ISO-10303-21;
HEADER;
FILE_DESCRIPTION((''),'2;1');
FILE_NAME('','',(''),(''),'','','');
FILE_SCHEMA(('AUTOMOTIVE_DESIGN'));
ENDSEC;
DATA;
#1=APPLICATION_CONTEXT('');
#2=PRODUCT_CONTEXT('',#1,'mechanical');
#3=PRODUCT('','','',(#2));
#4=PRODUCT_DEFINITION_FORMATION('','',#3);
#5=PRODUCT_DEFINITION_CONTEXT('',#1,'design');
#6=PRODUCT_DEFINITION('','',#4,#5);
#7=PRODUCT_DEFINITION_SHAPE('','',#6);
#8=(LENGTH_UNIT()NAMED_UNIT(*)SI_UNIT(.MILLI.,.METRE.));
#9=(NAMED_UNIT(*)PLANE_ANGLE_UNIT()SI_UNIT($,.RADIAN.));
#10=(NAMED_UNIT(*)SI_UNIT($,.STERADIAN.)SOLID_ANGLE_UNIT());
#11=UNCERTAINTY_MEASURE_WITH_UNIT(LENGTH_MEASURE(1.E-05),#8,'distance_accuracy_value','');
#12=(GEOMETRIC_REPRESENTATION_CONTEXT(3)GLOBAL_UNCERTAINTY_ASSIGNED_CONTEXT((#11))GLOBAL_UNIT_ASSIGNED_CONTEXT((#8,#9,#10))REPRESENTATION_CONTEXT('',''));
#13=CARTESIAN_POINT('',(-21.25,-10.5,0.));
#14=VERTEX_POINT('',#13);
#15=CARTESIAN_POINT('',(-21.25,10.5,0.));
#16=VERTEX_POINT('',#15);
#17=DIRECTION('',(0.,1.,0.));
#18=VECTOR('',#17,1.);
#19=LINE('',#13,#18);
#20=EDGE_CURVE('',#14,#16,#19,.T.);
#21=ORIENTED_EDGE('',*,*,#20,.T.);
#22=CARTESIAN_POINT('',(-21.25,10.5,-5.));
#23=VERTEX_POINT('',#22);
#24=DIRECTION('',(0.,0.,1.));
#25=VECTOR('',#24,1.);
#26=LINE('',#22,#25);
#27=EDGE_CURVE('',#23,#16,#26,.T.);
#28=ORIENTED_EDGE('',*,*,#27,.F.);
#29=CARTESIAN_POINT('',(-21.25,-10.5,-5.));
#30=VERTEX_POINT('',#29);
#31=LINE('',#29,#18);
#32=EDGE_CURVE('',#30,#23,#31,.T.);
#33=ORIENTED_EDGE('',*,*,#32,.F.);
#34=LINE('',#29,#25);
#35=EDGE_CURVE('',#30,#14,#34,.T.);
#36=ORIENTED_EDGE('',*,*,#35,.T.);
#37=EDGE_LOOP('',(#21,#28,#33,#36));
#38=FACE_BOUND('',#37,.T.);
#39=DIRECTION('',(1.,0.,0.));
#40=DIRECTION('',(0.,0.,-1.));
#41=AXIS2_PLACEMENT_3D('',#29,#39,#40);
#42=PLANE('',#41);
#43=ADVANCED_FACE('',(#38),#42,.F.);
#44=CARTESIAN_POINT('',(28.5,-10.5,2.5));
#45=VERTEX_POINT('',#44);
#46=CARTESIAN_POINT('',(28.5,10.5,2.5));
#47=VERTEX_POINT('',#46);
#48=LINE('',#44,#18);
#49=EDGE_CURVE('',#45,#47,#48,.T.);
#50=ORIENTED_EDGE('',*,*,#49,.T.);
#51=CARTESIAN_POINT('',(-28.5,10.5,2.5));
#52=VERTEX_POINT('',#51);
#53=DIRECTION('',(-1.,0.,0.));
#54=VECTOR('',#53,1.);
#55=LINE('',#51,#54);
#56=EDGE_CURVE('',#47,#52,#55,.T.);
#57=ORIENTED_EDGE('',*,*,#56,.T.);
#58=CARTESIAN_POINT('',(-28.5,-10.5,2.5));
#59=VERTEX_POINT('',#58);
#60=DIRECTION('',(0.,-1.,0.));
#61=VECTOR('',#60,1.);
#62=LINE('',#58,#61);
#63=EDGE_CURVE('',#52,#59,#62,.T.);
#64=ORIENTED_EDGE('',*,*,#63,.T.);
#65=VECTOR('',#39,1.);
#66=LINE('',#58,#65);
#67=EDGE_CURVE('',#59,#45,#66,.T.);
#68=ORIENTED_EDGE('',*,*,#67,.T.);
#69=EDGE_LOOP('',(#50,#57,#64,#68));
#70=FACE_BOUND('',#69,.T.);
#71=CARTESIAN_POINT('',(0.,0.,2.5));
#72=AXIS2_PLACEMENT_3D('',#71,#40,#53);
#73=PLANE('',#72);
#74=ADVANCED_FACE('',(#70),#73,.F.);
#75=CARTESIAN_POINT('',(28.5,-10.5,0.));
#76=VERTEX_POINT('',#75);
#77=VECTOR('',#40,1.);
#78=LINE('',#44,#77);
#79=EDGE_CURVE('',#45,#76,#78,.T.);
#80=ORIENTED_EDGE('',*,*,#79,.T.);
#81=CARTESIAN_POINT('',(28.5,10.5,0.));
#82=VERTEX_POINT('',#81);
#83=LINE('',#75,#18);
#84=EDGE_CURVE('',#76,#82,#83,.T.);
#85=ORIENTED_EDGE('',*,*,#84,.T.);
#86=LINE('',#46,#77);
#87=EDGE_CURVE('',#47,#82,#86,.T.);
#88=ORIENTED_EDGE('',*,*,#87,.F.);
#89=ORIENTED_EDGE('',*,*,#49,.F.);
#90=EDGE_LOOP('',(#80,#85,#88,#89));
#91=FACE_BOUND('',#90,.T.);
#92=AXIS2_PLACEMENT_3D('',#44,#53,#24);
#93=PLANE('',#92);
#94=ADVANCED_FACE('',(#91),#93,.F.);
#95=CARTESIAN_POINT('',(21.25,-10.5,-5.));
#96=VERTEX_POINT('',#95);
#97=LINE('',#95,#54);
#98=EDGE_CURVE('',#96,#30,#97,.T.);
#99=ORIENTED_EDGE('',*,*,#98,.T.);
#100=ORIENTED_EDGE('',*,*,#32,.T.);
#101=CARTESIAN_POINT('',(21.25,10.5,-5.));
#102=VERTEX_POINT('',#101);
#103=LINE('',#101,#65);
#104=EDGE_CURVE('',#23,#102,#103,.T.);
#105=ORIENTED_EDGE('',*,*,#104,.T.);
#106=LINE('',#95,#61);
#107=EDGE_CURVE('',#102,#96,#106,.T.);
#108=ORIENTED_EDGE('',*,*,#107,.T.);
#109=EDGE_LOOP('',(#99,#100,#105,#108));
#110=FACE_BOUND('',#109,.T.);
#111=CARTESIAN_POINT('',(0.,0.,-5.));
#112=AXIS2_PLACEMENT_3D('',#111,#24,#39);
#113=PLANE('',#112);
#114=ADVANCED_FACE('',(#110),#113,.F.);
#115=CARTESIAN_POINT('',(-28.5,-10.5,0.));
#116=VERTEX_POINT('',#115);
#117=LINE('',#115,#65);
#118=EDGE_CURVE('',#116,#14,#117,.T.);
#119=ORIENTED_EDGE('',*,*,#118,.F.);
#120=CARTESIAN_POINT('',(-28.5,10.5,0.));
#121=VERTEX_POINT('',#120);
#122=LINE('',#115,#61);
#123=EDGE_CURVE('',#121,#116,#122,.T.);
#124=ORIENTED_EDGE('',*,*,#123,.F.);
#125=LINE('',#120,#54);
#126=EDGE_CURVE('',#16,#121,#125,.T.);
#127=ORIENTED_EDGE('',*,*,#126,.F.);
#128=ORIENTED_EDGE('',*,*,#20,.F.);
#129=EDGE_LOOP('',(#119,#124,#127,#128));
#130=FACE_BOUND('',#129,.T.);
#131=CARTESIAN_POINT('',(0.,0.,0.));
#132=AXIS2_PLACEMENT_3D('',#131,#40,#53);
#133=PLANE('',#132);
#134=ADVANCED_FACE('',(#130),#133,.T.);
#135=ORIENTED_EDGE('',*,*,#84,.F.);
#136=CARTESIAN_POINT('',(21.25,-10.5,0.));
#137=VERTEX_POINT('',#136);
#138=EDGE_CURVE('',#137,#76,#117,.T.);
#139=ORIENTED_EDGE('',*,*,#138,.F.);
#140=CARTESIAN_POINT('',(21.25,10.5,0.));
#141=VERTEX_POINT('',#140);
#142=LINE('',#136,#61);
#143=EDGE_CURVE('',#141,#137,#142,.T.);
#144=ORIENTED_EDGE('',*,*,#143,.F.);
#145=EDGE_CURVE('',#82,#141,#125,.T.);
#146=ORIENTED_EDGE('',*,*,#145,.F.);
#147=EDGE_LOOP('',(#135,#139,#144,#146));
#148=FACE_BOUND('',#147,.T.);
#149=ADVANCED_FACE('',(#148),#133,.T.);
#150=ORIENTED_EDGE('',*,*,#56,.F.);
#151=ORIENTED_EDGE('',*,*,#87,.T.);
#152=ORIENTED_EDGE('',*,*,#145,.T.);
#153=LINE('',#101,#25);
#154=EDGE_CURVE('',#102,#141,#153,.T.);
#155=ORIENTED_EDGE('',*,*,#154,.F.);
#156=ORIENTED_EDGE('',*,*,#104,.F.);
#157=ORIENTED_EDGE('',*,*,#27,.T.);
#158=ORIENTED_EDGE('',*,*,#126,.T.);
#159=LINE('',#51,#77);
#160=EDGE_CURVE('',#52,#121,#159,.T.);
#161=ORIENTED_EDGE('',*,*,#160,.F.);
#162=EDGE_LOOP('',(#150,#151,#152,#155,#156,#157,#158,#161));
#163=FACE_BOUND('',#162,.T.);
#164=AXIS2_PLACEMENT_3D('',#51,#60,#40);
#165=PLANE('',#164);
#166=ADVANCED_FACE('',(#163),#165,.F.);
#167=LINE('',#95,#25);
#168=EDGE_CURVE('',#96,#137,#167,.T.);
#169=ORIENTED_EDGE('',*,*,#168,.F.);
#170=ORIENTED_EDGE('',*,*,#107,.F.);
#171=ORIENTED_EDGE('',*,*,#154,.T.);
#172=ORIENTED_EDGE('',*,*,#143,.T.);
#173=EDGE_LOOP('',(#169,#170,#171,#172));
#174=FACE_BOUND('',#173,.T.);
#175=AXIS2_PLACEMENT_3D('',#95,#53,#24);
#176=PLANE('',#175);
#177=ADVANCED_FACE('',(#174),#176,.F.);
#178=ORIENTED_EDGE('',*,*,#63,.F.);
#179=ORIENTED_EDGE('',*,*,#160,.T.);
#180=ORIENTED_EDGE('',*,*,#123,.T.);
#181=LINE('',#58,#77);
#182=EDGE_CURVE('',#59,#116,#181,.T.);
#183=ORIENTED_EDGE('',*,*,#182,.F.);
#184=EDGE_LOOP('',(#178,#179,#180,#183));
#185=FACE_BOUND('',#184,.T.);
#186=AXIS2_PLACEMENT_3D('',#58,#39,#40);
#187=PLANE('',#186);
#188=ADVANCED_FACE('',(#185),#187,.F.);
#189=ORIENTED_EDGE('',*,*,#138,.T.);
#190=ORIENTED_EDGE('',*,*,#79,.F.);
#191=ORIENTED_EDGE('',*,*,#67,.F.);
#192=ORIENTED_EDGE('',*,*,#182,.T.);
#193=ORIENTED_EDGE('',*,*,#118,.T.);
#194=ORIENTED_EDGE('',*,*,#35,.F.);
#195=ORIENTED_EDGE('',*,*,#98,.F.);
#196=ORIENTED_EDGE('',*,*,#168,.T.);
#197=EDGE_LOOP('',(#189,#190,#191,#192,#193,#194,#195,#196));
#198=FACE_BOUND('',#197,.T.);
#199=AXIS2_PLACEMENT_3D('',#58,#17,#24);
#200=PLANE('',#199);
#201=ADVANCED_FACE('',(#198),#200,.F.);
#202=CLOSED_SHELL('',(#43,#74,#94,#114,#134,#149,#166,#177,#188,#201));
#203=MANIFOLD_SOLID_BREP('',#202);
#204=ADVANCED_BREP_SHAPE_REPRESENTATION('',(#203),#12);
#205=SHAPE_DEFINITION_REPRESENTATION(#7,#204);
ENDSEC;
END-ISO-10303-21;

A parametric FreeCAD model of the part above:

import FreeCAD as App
import Part
import Sketcher


def add_polygon(sketch, points):
    """Adds a closed chain of lines whose ends are joined by coincident constraints."""
    first, n = sketch.GeometryCount, len(points)
    for a, b in zip(points, points[1:] + points[:1]):
        sketch.addGeometry(Part.LineSegment(App.Vector(*a, 0), App.Vector(*b, 0)), False)
    for i in range(n):
        sketch.addConstraint(Sketcher.Constraint("Coincident", first + i, 2, first + (i + 1) % n, 1))

doc = App.newDocument("Part")
body = doc.addObject("PartDesign::Body", "Body")

# Sketch on XY plane
sketch1 = body.newObject("Sketcher::SketchObject", "Sketch")
sketch1.AttachmentSupport = (doc.getObject("XY_Plane"), [""])
sketch1.MapMode = "FlatFace"
add_polygon(sketch1, [(-28.5, 10.5), (-28.5, -10.5), (28.5, -10.5), (28.5, 10.5)])  # lines 0-3
sketch1.addConstraint([
    Sketcher.Constraint("Vertical", 0),
    Sketcher.Constraint("Horizontal", 1),
    Sketcher.Constraint("Vertical", 2),
    Sketcher.Constraint("Horizontal", 3),
    Sketcher.Constraint("Symmetric", 0, 2, 2, 2, -1, 1),
    Sketcher.Constraint("DistanceX", 1, 1, 1, 2, 57.0),
    Sketcher.Constraint("DistanceY", 0, 2, 0, 1, 21.0),
])
pad1 = body.newObject("PartDesign::Pad", "Pad")
pad1.Profile = sketch1
pad1.Length = 2.5

# Sketch on XY plane
sketch2 = body.newObject("Sketcher::SketchObject", "Sketch001")
sketch2.AttachmentSupport = (doc.getObject("XY_Plane"), [""])
sketch2.MapMode = "FlatFace"
add_polygon(sketch2, [(21.25, 10.5), (21.25, -10.5), (-21.25, -10.5), (-21.25, 10.5)])  # lines 0-3
sketch2.addConstraint([
    Sketcher.Constraint("Vertical", 0),
    Sketcher.Constraint("Horizontal", 1),
    Sketcher.Constraint("Vertical", 2),
    Sketcher.Constraint("Horizontal", 3),
    Sketcher.Constraint("Symmetric", 0, 2, 2, 2, -1, 1),
    Sketcher.Constraint("DistanceY", 0, 2, 0, 1, 21.0),
    Sketcher.Constraint("DistanceX", 1, 2, 1, 1, 42.5),
])
pad2 = body.newObject("PartDesign::Pad", "Pad001")
pad2.Profile = sketch2
pad2.Length = 5
pad2.Reversed = True

doc.recompute()
